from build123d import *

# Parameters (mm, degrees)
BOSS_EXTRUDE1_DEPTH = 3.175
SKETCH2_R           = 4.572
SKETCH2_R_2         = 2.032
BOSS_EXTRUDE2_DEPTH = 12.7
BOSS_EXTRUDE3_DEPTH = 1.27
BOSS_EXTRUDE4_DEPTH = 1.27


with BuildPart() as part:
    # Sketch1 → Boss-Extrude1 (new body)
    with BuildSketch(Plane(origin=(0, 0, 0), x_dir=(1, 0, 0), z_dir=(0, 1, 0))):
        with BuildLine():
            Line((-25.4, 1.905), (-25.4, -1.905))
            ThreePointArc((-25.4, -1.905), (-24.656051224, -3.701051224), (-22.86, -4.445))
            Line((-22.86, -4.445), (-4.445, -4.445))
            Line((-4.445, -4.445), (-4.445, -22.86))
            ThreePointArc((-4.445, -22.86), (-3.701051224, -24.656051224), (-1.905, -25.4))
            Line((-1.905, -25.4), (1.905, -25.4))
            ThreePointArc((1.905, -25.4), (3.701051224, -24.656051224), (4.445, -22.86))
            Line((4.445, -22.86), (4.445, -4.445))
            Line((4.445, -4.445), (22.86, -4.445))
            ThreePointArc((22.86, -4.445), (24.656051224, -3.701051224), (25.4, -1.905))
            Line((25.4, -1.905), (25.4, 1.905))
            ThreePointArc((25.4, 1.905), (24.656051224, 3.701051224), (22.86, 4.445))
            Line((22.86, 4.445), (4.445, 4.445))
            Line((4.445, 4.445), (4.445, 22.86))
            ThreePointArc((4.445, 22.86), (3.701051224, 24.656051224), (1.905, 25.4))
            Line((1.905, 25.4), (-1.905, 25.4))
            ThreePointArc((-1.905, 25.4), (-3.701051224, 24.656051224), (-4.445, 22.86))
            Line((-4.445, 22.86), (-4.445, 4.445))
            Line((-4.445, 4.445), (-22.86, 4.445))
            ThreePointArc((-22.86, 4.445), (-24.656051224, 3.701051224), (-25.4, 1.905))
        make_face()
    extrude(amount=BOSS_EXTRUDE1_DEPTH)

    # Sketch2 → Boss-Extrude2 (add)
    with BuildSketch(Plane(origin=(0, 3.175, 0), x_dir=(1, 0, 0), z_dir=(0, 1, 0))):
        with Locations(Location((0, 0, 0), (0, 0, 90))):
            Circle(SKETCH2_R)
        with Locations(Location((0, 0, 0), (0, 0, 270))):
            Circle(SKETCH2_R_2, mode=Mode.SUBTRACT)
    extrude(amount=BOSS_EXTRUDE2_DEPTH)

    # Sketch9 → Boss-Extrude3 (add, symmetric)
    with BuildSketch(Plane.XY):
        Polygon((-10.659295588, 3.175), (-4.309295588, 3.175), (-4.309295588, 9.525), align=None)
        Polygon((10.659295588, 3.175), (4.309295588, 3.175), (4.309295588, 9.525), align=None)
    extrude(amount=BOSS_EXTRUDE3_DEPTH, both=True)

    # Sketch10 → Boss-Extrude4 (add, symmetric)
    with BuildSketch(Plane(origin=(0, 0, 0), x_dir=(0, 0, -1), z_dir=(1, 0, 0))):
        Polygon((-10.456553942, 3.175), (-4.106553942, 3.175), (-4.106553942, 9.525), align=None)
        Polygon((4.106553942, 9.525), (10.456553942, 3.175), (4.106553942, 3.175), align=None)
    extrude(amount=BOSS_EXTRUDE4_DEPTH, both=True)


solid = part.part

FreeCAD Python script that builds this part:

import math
import FreeCAD as App
import Part
import Sketcher

V = App.Vector
Q = App.Units.Quantity

doc = App.newDocument("Part")
body = doc.addObject("PartDesign::Body", "Body")

sketch1 = body.newObject("Sketcher::SketchObject", "Sketch")
sketch1.AttachmentSupport = (doc.getObject("XZ_Plane"), [""])
sketch1.MapMode = "FlatFace"
sketch1.addGeometry([
    Part.LineSegment(V(-25.4, -1.9, 0), V(-25.4, 1.9, 0)),
    Part.ArcOfCircle(Part.Circle(V(-22.9, 1.9, 0), V(0, 0, 1), 2.5), math.radians(90), math.radians(180)),
    Part.LineSegment(V(-22.9, 4.4, 0), V(-4.4, 4.4, 0)),
    Part.LineSegment(V(-4.4, 4.4, 0), V(-4.4, 22.9, 0)),
    Part.ArcOfCircle(Part.Circle(V(-1.9, 22.9, 0), V(0, 0, 1), 2.5), math.radians(90), math.radians(180)),
    Part.LineSegment(V(-1.9, 25.4, 0), V(1.9, 25.4, 0)),
    Part.ArcOfCircle(Part.Circle(V(1.9, 22.9, 0), V(0, 0, 1), 2.5), math.radians(0), math.radians(90)),
    Part.LineSegment(V(4.4, 22.9, 0), V(4.4, 4.4, 0)),
    Part.LineSegment(V(4.4, 4.4, 0), V(22.9, 4.4, 0)),
    Part.ArcOfCircle(Part.Circle(V(22.9, 1.9, 0), V(0, 0, 1), 2.5), math.radians(0), math.radians(90)),
    Part.LineSegment(V(25.4, 1.9, 0), V(25.4, -1.9, 0)),
    Part.ArcOfCircle(Part.Circle(V(22.9, -1.9, 0), V(0, 0, 1), 2.5), math.radians(-90), math.radians(0)),
    Part.LineSegment(V(22.9, -4.4, 0), V(4.4, -4.4, 0)),
    Part.LineSegment(V(4.4, -4.4, 0), V(4.4, -22.9, 0)),
    Part.ArcOfCircle(Part.Circle(V(1.9, -22.9, 0), V(0, 0, 1), 2.5), math.radians(-90), math.radians(0)),
    Part.LineSegment(V(1.9, -25.4, 0), V(-1.9, -25.4, 0)),
    Part.ArcOfCircle(Part.Circle(V(-1.9, -22.9, 0), V(0, 0, 1), 2.5), math.radians(-180), math.radians(-90)),
    Part.LineSegment(V(-4.4, -22.9, 0), V(-4.4, -4.4, 0)),
    Part.LineSegment(V(-4.4, -4.4, 0), V(-22.9, -4.4, 0)),
    Part.ArcOfCircle(Part.Circle(V(-22.9, -1.9, 0), V(0, 0, 1), 2.5), math.radians(-180), math.radians(-90)),
], False)
sketch1.addConstraint([
    Sketcher.Constraint("Tangent", 0, 2, 1, 2),
    Sketcher.Constraint("Tangent", 1, 1, 2, 1),
    Sketcher.Constraint("Coincident", 2, 2, 3, 1),
    Sketcher.Constraint("Tangent", 3, 2, 4, 2),
    Sketcher.Constraint("Tangent", 4, 1, 5, 1),
    Sketcher.Constraint("Tangent", 5, 2, 6, 2),
    Sketcher.Constraint("Tangent", 6, 1, 7, 1),
    Sketcher.Constraint("Coincident", 7, 2, 8, 1),
    Sketcher.Constraint("Tangent", 8, 2, 9, 2),
    Sketcher.Constraint("Tangent", 9, 1, 10, 1),
    Sketcher.Constraint("Tangent", 10, 2, 11, 2),
    Sketcher.Constraint("Tangent", 11, 1, 12, 1),
    Sketcher.Constraint("Coincident", 12, 2, 13, 1),
    Sketcher.Constraint("Tangent", 13, 2, 14, 2),
    Sketcher.Constraint("Tangent", 14, 1, 15, 1),
    Sketcher.Constraint("Tangent", 15, 2, 16, 2),
    Sketcher.Constraint("Tangent", 16, 1, 17, 1),
    Sketcher.Constraint("Coincident", 17, 2, 18, 1),
    Sketcher.Constraint("Tangent", 18, 2, 19, 2),
    Sketcher.Constraint("Tangent", 19, 1, 0, 1),
    Sketcher.Constraint("Vertical", 0),
    Sketcher.Constraint("Horizontal", 2),
    Sketcher.Constraint("Vertical", 3),
    Sketcher.Constraint("Horizontal", 5),
    Sketcher.Constraint("Vertical", 7),
    Sketcher.Constraint("Horizontal", 8),
    Sketcher.Constraint("Vertical", 10),
    Sketcher.Constraint("Horizontal", 12),
    Sketcher.Constraint("Vertical", 13),
    Sketcher.Constraint("Horizontal", 15),
    Sketcher.Constraint("Vertical", 17),
    Sketcher.Constraint("Horizontal", 18),
    Sketcher.Constraint("Equal", 1, 4),
    Sketcher.Constraint("Equal", 4, 6),
    Sketcher.Constraint("Equal", 6, 9),
    Sketcher.Constraint("Equal", 9, 11),
    Sketcher.Constraint("Equal", 11, 14),
    Sketcher.Constraint("Equal", 14, 16),
    Sketcher.Constraint("Equal", 16, 19),
    Sketcher.Constraint("Symmetric", 1, 3, 11, 3, -1, 1),
    Sketcher.Constraint("Symmetric", 4, 3, 14, 3, -1, 1),
    Sketcher.Constraint("Symmetric", 7, 2, 17, 2, -1, 1),
    Sketcher.Constraint("Symmetric", 2, 2, 7, 2, -2),
    Sketcher.Constraint("Equal", 15, 0),
    Sketcher.Constraint("Equal", 18, 3),
    Sketcher.Constraint("Radius", 1, Q("0.1 in")),
    Sketcher.Constraint("DistanceX", 0, 2, -1, 1, Q("1 in")),
    Sketcher.Constraint("DistanceX", 5, 1, 5, 2, Q("0.15 in")),
])
pad1 = body.newObject("PartDesign::Pad", "Pad")
pad1.Profile = sketch1
pad1.Length = Q("0.125 in")
pad1.Reversed = True

sketch2 = body.newObject("Sketcher::SketchObject", "Sketch001")
sketch2.AttachmentSupport = (doc.getObject("XZ_Plane"), [""])
sketch2.MapMode = "FlatFace"
sketch2.AttachmentOffset = App.Placement(V(0, 0, -0.125 * 25.4), App.Rotation())
sketch2.addGeometry([
    Part.Circle(V(0, 0, 0), V(0, 0, 1), 4.6),
    Part.Circle(V(0, 0, 0), V(0, 0, 1), 2),
], False)
sketch2.addConstraint([
    Sketcher.Constraint("Coincident", 0, 3, -1, 1),
    Sketcher.Constraint("Coincident", 1, 3, -1, 1),
    Sketcher.Constraint("Diameter", 0, Q("0.36 in")),
    Sketcher.Constraint("Diameter", 1, Q("0.16 in")),
])
pad2 = body.newObject("PartDesign::Pad", "Pad001")
pad2.Profile = sketch2
pad2.Length = Q("0.5 in")
pad2.Reversed = True

sketch3 = body.newObject("Sketcher::SketchObject", "Sketch002")
sketch3.AttachmentSupport = (doc.getObject("XY_Plane"), [""])
sketch3.MapMode = "FlatFace"
sketch3.addGeometry([
    Part.LineSegment(V(-11, 3, 0), V(-4, 3, 0)),
    Part.LineSegment(V(-4, 3, 0), V(-4, 10, 0)),
    Part.LineSegment(V(-4, 10, 0), V(-11, 3, 0)),
    Part.LineSegment(V(4, 3, 0), V(11, 3, 0)),
    Part.LineSegment(V(11, 3, 0), V(4, 10, 0)),
    Part.LineSegment(V(4, 10, 0), V(4, 3, 0)),
], False)
sketch3.addConstraint([
    Sketcher.Constraint("Coincident", 0, 2, 1, 1),
    Sketcher.Constraint("Coincident", 1, 2, 2, 1),
    Sketcher.Constraint("Coincident", 2, 2, 0, 1),
    Sketcher.Constraint("Coincident", 3, 2, 4, 1),
    Sketcher.Constraint("Coincident", 4, 2, 5, 1),
    Sketcher.Constraint("Coincident", 5, 2, 3, 1),
    Sketcher.Constraint("Horizontal", 0),
    Sketcher.Constraint("Vertical", 1),
    Sketcher.Constraint("Horizontal", 3),
    Sketcher.Constraint("Vertical", 5),
    Sketcher.Constraint("Symmetric", 2, 2, 3, 2, -2),
    Sketcher.Constraint("Symmetric", 1, 2, 4, 2, -2),
    Sketcher.Constraint("Perpendicular", 2, 4),
    Sketcher.Constraint("DistanceX", 0, 1, 0, 2, Q("0.25 in")),
    Sketcher.Constraint("DistanceY", -1, 1, 0, 2, Q("0.125 in")),
    Sketcher.Constraint("DistanceX", 0, 2, 3, 2, Q("14.968591 mm")),
])
pad3 = body.newObject("PartDesign::Pad", "Pad002")
pad3.Profile = sketch3
pad3.Length = Q("0.1 in")
pad3.Midplane = True

sketch4 = body.newObject("Sketcher::SketchObject", "Sketch003")
sketch4.AttachmentSupport = (doc.getObject("YZ_Plane"), [""])
sketch4.MapMode = "FlatFace"
sketch4.addGeometry([
    Part.LineSegment(V(3, 10, 0), V(3, 4, 0)),
    Part.LineSegment(V(3, 4, 0), V(10, 4, 0)),
    Part.LineSegment(V(10, 4, 0), V(3, 10, 0)),
    Part.LineSegment(V(3, -10, 0), V(10, -4, 0)),
    Part.LineSegment(V(10, -4, 0), V(3, -4, 0)),
    Part.LineSegment(V(3, -4, 0), V(3, -10, 0)),
], False)
sketch4.addConstraint([
    Sketcher.Constraint("Coincident", 0, 2, 1, 1),
    Sketcher.Constraint("Coincident", 1, 2, 2, 1),
    Sketcher.Constraint("Coincident", 2, 2, 0, 1),
    Sketcher.Constraint("Coincident", 3, 2, 4, 1),
    Sketcher.Constraint("Coincident", 4, 2, 5, 1),
    Sketcher.Constraint("Coincident", 5, 2, 3, 1),
    Sketcher.Constraint("Vertical", 0),
    Sketcher.Constraint("Horizontal", 1),
    Sketcher.Constraint("Horizontal", 4),
    Sketcher.Constraint("Vertical", 5),
    Sketcher.Constraint("Symmetric", 1, 2, 3, 2, -1),
    Sketcher.Constraint("Symmetric", 2, 2, 5, 2, -1),
    Sketcher.Constraint("Perpendicular", 2, 3),
    Sketcher.Constraint("DistanceX", 1, 1, 1, 2, Q("0.25 in")),
    Sketcher.Constraint("DistanceX", -1, 1, 0, 2, Q("0.125 in")),
    Sketcher.Constraint("DistanceY", -1, 1, 0, 2, Q("4.106554 mm")),
])
pad4 = body.newObject("PartDesign::Pad", "Pad003")
pad4.Profile = sketch4
pad4.Length = Q("0.1 in")
pad4.Midplane = True

doc.recompute()
